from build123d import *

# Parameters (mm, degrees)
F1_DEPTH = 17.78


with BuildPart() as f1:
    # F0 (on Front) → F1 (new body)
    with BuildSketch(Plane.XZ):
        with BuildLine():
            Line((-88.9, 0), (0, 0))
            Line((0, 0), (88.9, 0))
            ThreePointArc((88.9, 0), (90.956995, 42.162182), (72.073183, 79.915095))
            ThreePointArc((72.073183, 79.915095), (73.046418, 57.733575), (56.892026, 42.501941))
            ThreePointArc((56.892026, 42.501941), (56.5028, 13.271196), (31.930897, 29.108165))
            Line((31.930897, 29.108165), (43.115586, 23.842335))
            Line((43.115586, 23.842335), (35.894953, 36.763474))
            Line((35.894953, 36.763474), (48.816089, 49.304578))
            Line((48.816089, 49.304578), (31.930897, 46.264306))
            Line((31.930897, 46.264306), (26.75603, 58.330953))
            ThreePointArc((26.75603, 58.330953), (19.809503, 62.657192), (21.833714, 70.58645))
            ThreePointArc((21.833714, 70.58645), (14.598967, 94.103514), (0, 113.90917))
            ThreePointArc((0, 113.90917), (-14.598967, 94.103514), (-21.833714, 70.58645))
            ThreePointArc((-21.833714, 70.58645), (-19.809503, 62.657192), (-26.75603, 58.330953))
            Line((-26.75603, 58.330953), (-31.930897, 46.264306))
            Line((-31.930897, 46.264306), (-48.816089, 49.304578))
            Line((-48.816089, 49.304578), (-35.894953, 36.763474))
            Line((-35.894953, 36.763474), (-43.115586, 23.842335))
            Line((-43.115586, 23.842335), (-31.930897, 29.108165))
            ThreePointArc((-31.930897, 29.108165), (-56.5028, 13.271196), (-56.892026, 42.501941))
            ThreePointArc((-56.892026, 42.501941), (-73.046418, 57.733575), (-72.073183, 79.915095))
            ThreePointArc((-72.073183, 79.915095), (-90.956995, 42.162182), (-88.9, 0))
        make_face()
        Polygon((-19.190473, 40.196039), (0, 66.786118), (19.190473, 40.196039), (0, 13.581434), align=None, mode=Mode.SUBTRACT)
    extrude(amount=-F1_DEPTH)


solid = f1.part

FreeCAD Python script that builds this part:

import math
import FreeCAD as App
import Part
import Sketcher

V = App.Vector
Q = App.Units.Quantity

doc = App.newDocument("Part")
body = doc.addObject("PartDesign::Body", "Body")

sketch1 = doc.addObject("Sketcher::SketchObject", "Sketch")
body.addObject(sketch1)
sketch1.AttachmentSupport = (doc.XZ_Plane, [""])
sketch1.MapMode = "FlatFace"
sketch1.addGeometry([
    Part.LineSegment(V(-88.9, 0, 0), V(88.9, 0, 0)),
    Part.ArcOfCircle(Part.Circle(V(9.478046, 25.006082, 0), V(0, 0, 1), 83.265545), math.radians(-17.476661), math.radians(41.257528)),
    Part.ArcOfCircle(Part.Circle(V(48.333425, 67.76138, 0), V(0, 0, 1), 26.67), math.radians(-71.282188), math.radians(27.110455)),
    Part.ArcOfCircle(Part.Circle(V(48.602567, 27.994357, 0), V(0, 0, 1), 16.708834), math.radians(176.177837), math.radians(420.256872)),
    Part.LineSegment(V(31.930897, 29.108165, 0), V(43.115586, 23.842335, 0)),
    Part.LineSegment(V(43.115586, 23.842335, 0), V(35.894953, 36.763474, 0)),
    Part.LineSegment(V(35.894953, 36.763474, 0), V(48.816089, 49.304578, 0)),
    Part.LineSegment(V(48.816089, 49.304578, 0), V(31.930897, 46.264306, 0)),
    Part.LineSegment(V(31.930897, 46.264306, 0), V(26.75603, 58.330953, 0)),
    Part.ArcOfCircle(Part.Circle(V(26.237942, 65.239119, 0), V(0, 0, 1), 6.927566), math.radians(129.475929), math.radians(274.288953)),
    Part.ArcOfCircle(Part.Circle(V(-50.957527, 61.064459, 0), V(0, 0, 1), 73.411396), math.radians(7.452677), math.radians(46.041556)),
    Part.ArcOfCircle(Part.Circle(V(50.957527, 61.064459, 0), V(0, 0, 1), 73.411396), math.radians(133.958444), math.radians(172.547323)),
    Part.ArcOfCircle(Part.Circle(V(-26.237942, 65.239119, 0), V(0, 0, 1), 6.927566), math.radians(-94.288953), math.radians(50.524071)),
    Part.LineSegment(V(-26.75603, 58.330953, 0), V(-31.930897, 46.264306, 0)),
    Part.LineSegment(V(-31.930897, 46.264306, 0), V(-48.816089, 49.304578, 0)),
    Part.LineSegment(V(-48.816089, 49.304578, 0), V(-35.894953, 36.763474, 0)),
    Part.LineSegment(V(-35.894953, 36.763474, 0), V(-43.115586, 23.842335, 0)),
    Part.LineSegment(V(-43.115586, 23.842335, 0), V(-31.930897, 29.108165, 0)),
    Part.ArcOfCircle(Part.Circle(V(-48.602567, 27.994357, 0), V(0, 0, 1), 16.708834), math.radians(119.743128), math.radians(363.822163)),
    Part.ArcOfCircle(Part.Circle(V(-48.333425, 67.76138, 0), V(0, 0, 1), 26.67), math.radians(152.889545), math.radians(251.282188)),
    Part.ArcOfCircle(Part.Circle(V(-9.478046, 25.006082, 0), V(0, 0, 1), 83.265545), math.radians(138.742472), math.radians(197.476661)),
    Part.LineSegment(V(0, 13.581434, 0), V(-19.190473, 40.196039, 0)),
    Part.LineSegment(V(-19.190473, 40.196039, 0), V(0, 66.786118, 0)),
    Part.LineSegment(V(0, 66.786118, 0), V(19.190473, 40.196039, 0)),
    Part.LineSegment(V(19.190473, 40.196039, 0), V(0, 13.581434, 0)),
], False)
sketch1.addConstraint([
    Sketcher.Constraint("Coincident", 0, 2, 1, 1),
    Sketcher.Constraint("Coincident", 1, 2, 2, 2),
    Sketcher.Constraint("Coincident", 2, 1, 3, 2),
    Sketcher.Constraint("Coincident", 3, 1, 4, 1),
    Sketcher.Constraint("Coincident", 4, 2, 5, 1),
    Sketcher.Constraint("Coincident", 5, 2, 6, 1),
    Sketcher.Constraint("Coincident", 6, 2, 7, 1),
    Sketcher.Constraint("Coincident", 7, 2, 8, 1),
    Sketcher.Constraint("Coincident", 8, 2, 9, 2),
    Sketcher.Constraint("Coincident", 9, 1, 10, 1),
    Sketcher.Constraint("Coincident", 10, 2, 11, 1),
    Sketcher.Constraint("Coincident", 11, 2, 12, 2),
    Sketcher.Constraint("Coincident", 12, 1, 13, 1),
    Sketcher.Constraint("Coincident", 13, 2, 14, 1),
    Sketcher.Constraint("Coincident", 14, 2, 15, 1),
    Sketcher.Constraint("Coincident", 15, 2, 16, 1),
    Sketcher.Constraint("Coincident", 16, 2, 17, 1),
    Sketcher.Constraint("Coincident", 17, 2, 18, 2),
    Sketcher.Constraint("Coincident", 18, 1, 19, 2),
    Sketcher.Constraint("Coincident", 19, 1, 20, 1),
    Sketcher.Constraint("Coincident", 20, 2, 0, 1),
    Sketcher.Constraint("Coincident", 21, 2, 22, 1),
    Sketcher.Constraint("Coincident", 22, 2, 23, 1),
    Sketcher.Constraint("Coincident", 23, 2, 24, 1),
    Sketcher.Constraint("Coincident", 24, 2, 21, 1),
    Sketcher.Constraint("Horizontal", 0),
    Sketcher.Constraint("Equal", 10, 11),
    Sketcher.Constraint("Equal", 9, 12),
    Sketcher.Constraint("Equal", 3, 18),
    Sketcher.Constraint("Equal", 2, 19),
    Sketcher.Constraint("Equal", 1, 20),
    Sketcher.Constraint("Symmetric", 0, 2, 20, 2, -1, 1),
    Sketcher.Constraint("Symmetric", 10, 3, 11, 3, -2),
    Sketcher.Constraint("Symmetric", 9, 3, 12, 3, -2),
    Sketcher.Constraint("Symmetric", 3, 3, 18, 3, -2),
    Sketcher.Constraint("Symmetric", 2, 3, 19, 3, -2),
    Sketcher.Constraint("Symmetric", 7, 2, 13, 2, -2),
    Sketcher.Constraint("Symmetric", 6, 2, 14, 2, -2),
    Sketcher.Constraint("Symmetric", 5, 2, 15, 2, -2),
    Sketcher.Constraint("Symmetric", 4, 2, 16, 2, -2),
    Sketcher.Constraint("Symmetric", 21, 2, 23, 2, -2),
    Sketcher.Constraint("PointOnObject", 22, 2, -2),
    Sketcher.Constraint("PointOnObject", 24, 2, -2),
    Sketcher.Constraint("Horizontal", 1, 3, 20, 3),
    Sketcher.Constraint("Horizontal", 8, 2, 12, 1),
    Sketcher.Constraint("Horizontal", 3, 1, 17, 2),
    Sketcher.Constraint("Vertical", 3, 1, 7, 2),
    Sketcher.Constraint("DistanceX", 0, 1, 0, 2, Q("7 in")),
    Sketcher.Constraint("Radius", 2, Q("1.05 in")),
    Sketcher.Constraint("Radius", 1, 83.265545),
    Sketcher.Constraint("Radius", 3, 16.708834),
    Sketcher.Constraint("Radius", 9, 6.927566),
    Sketcher.Constraint("Radius", 10, 73.411396),
    Sketcher.Constraint("DistanceX", 8, 2, 5, 2, Q("0.3598001 in")),
    Sketcher.Constraint("DistanceY", 8, 2, 9, 1, Q("0.4824999 in")),
    Sketcher.Constraint("DistanceX", 18, 3, 12, 1, Q("0.8600999 in")),
    Sketcher.Constraint("DistanceY", 1, 3, 2, 3, 42.755298),
    Sketcher.Constraint("DistanceX", 11, 3, 2, 1, 5.934499),
    Sketcher.Constraint("DistanceX", 2, 3, 2, 1, 8.558601),
    Sketcher.Constraint("DistanceY", 9, 3, 22, 2, 1.546999),
    Sketcher.Constraint("Distance", 4, 12.362291),
    Sketcher.Constraint("Distance", 8, 13.129479),
    Sketcher.Constraint("DistanceY", -1, 1, 1, 3, 25.006082),
    Sketcher.Constraint("DistanceX", -1, 1, 9, 3, 26.237942),
    Sketcher.Constraint("DistanceY", -1, 1, 9, 3, 65.239119),
    Sketcher.Constraint("DistanceY", -1, 1, 10, 3, 61.064459),
    Sketcher.Constraint("DistanceX", -1, 1, 6, 2, 48.816089),
    Sketcher.Constraint("DistanceX", -1, 1, 8, 2, 26.75603),
    Sketcher.Constraint("DistanceY", -1, 1, 21, 2, 40.196039),
    Sketcher.Constraint("DistanceX", 3, 1, 3, 3, 16.67167),
    Sketcher.Constraint("DistanceX", 4, 2, 3, 3, 5.486981),
    Sketcher.Constraint("DistanceY", 3, 1, 5, 2, 7.655309),
    Sketcher.Constraint("DistanceY", 6, 2, 11, 3, 11.759881),
    Sketcher.Constraint("DistanceX", 15, 2, 21, 2, 16.70448),
    Sketcher.Constraint("DistanceY", 24, 2, 3, 1, 15.526731),
])
pad1 = doc.addObject("PartDesign::Pad", "Pad")
body.addObject(pad1)
pad1.Profile = sketch1
pad1.Length = Q("0.7 in")
pad1.Reversed = True

doc.recompute()
